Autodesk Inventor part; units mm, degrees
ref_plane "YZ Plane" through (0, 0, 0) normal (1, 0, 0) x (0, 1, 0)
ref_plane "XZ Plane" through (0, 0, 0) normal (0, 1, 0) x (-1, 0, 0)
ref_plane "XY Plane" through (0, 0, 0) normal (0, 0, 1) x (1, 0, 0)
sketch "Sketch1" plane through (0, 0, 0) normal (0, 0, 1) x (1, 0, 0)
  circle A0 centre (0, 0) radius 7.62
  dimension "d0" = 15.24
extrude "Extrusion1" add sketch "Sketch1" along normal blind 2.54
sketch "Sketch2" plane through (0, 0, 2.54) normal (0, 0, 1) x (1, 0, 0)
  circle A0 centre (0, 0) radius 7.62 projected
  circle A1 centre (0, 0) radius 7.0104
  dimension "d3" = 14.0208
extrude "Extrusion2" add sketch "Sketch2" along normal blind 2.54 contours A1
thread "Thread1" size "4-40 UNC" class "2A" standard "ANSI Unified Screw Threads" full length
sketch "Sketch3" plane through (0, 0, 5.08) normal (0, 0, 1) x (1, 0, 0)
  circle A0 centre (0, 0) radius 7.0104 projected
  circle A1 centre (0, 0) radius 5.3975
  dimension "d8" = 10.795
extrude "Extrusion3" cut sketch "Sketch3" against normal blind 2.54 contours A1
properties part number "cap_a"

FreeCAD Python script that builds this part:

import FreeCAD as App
import Part
import Sketcher
from FreeCAD import Vector
Q = App.Units.Quantity

doc = App.newDocument("Part")
body = doc.addObject("PartDesign::Body", "Body")

# Sketch on XY plane
sketch1 = body.newObject("Sketcher::SketchObject", "Sketch")
sketch1.AttachmentSupport = (doc.getObject("XY_Plane"), [""])
sketch1.MapMode = "FlatFace"
sketch1.addGeometry(Part.Circle(Vector(0, 0, 0), Vector(0, 0, 1), 8), False)
sketch1.addConstraint([
    Sketcher.Constraint("Coincident", 0, 3, -1, 1),
    Sketcher.Constraint("Diameter", 0, Q("0.6 in")),
])
pad1 = body.newObject("PartDesign::Pad", "Pad")
pad1.Profile = sketch1
pad1.Length = Q("0.1 in")

# Sketch on XY plane
sketch2 = body.newObject("Sketcher::SketchObject", "Sketch001")
sketch2.AttachmentSupport = (doc.getObject("XY_Plane"), [""])
sketch2.MapMode = "FlatFace"
sketch2.AttachmentOffset = App.Placement(Vector(0, 0, 0.1 * 25.4), App.Rotation())
sketch2.addGeometry(Part.Circle(Vector(0, 0, 0), Vector(0, 0, 1), 7), False)
sketch2.addConstraint([
    Sketcher.Constraint("Coincident", 0, 3, -1, 1),
    Sketcher.Constraint("Diameter", 0, Q("0.552 in")),
])
pad2 = body.newObject("PartDesign::Pad", "Pad001")
pad2.Profile = sketch2
pad2.Length = Q("0.1 in")

# Sketch on XY plane
sketch3 = body.newObject("Sketcher::SketchObject", "Sketch002")
sketch3.AttachmentSupport = (doc.getObject("XY_Plane"), [""])
sketch3.MapMode = "FlatFace"
sketch3.AttachmentOffset = App.Placement(Vector(0, 0, 0.2 * 25.4), App.Rotation())
sketch3.addGeometry(Part.Circle(Vector(0, 0, 0), Vector(0, 0, 1), 5), False)
sketch3.addConstraint([
    Sketcher.Constraint("Coincident", 0, 3, -1, 1),
    Sketcher.Constraint("Diameter", 0, Q("0.425 in")),
])
pocket1 = body.newObject("PartDesign::Pocket", "Pocket")
pocket1.Profile = sketch3
pocket1.Length = Q("0.1 in")

doc.recompute()
